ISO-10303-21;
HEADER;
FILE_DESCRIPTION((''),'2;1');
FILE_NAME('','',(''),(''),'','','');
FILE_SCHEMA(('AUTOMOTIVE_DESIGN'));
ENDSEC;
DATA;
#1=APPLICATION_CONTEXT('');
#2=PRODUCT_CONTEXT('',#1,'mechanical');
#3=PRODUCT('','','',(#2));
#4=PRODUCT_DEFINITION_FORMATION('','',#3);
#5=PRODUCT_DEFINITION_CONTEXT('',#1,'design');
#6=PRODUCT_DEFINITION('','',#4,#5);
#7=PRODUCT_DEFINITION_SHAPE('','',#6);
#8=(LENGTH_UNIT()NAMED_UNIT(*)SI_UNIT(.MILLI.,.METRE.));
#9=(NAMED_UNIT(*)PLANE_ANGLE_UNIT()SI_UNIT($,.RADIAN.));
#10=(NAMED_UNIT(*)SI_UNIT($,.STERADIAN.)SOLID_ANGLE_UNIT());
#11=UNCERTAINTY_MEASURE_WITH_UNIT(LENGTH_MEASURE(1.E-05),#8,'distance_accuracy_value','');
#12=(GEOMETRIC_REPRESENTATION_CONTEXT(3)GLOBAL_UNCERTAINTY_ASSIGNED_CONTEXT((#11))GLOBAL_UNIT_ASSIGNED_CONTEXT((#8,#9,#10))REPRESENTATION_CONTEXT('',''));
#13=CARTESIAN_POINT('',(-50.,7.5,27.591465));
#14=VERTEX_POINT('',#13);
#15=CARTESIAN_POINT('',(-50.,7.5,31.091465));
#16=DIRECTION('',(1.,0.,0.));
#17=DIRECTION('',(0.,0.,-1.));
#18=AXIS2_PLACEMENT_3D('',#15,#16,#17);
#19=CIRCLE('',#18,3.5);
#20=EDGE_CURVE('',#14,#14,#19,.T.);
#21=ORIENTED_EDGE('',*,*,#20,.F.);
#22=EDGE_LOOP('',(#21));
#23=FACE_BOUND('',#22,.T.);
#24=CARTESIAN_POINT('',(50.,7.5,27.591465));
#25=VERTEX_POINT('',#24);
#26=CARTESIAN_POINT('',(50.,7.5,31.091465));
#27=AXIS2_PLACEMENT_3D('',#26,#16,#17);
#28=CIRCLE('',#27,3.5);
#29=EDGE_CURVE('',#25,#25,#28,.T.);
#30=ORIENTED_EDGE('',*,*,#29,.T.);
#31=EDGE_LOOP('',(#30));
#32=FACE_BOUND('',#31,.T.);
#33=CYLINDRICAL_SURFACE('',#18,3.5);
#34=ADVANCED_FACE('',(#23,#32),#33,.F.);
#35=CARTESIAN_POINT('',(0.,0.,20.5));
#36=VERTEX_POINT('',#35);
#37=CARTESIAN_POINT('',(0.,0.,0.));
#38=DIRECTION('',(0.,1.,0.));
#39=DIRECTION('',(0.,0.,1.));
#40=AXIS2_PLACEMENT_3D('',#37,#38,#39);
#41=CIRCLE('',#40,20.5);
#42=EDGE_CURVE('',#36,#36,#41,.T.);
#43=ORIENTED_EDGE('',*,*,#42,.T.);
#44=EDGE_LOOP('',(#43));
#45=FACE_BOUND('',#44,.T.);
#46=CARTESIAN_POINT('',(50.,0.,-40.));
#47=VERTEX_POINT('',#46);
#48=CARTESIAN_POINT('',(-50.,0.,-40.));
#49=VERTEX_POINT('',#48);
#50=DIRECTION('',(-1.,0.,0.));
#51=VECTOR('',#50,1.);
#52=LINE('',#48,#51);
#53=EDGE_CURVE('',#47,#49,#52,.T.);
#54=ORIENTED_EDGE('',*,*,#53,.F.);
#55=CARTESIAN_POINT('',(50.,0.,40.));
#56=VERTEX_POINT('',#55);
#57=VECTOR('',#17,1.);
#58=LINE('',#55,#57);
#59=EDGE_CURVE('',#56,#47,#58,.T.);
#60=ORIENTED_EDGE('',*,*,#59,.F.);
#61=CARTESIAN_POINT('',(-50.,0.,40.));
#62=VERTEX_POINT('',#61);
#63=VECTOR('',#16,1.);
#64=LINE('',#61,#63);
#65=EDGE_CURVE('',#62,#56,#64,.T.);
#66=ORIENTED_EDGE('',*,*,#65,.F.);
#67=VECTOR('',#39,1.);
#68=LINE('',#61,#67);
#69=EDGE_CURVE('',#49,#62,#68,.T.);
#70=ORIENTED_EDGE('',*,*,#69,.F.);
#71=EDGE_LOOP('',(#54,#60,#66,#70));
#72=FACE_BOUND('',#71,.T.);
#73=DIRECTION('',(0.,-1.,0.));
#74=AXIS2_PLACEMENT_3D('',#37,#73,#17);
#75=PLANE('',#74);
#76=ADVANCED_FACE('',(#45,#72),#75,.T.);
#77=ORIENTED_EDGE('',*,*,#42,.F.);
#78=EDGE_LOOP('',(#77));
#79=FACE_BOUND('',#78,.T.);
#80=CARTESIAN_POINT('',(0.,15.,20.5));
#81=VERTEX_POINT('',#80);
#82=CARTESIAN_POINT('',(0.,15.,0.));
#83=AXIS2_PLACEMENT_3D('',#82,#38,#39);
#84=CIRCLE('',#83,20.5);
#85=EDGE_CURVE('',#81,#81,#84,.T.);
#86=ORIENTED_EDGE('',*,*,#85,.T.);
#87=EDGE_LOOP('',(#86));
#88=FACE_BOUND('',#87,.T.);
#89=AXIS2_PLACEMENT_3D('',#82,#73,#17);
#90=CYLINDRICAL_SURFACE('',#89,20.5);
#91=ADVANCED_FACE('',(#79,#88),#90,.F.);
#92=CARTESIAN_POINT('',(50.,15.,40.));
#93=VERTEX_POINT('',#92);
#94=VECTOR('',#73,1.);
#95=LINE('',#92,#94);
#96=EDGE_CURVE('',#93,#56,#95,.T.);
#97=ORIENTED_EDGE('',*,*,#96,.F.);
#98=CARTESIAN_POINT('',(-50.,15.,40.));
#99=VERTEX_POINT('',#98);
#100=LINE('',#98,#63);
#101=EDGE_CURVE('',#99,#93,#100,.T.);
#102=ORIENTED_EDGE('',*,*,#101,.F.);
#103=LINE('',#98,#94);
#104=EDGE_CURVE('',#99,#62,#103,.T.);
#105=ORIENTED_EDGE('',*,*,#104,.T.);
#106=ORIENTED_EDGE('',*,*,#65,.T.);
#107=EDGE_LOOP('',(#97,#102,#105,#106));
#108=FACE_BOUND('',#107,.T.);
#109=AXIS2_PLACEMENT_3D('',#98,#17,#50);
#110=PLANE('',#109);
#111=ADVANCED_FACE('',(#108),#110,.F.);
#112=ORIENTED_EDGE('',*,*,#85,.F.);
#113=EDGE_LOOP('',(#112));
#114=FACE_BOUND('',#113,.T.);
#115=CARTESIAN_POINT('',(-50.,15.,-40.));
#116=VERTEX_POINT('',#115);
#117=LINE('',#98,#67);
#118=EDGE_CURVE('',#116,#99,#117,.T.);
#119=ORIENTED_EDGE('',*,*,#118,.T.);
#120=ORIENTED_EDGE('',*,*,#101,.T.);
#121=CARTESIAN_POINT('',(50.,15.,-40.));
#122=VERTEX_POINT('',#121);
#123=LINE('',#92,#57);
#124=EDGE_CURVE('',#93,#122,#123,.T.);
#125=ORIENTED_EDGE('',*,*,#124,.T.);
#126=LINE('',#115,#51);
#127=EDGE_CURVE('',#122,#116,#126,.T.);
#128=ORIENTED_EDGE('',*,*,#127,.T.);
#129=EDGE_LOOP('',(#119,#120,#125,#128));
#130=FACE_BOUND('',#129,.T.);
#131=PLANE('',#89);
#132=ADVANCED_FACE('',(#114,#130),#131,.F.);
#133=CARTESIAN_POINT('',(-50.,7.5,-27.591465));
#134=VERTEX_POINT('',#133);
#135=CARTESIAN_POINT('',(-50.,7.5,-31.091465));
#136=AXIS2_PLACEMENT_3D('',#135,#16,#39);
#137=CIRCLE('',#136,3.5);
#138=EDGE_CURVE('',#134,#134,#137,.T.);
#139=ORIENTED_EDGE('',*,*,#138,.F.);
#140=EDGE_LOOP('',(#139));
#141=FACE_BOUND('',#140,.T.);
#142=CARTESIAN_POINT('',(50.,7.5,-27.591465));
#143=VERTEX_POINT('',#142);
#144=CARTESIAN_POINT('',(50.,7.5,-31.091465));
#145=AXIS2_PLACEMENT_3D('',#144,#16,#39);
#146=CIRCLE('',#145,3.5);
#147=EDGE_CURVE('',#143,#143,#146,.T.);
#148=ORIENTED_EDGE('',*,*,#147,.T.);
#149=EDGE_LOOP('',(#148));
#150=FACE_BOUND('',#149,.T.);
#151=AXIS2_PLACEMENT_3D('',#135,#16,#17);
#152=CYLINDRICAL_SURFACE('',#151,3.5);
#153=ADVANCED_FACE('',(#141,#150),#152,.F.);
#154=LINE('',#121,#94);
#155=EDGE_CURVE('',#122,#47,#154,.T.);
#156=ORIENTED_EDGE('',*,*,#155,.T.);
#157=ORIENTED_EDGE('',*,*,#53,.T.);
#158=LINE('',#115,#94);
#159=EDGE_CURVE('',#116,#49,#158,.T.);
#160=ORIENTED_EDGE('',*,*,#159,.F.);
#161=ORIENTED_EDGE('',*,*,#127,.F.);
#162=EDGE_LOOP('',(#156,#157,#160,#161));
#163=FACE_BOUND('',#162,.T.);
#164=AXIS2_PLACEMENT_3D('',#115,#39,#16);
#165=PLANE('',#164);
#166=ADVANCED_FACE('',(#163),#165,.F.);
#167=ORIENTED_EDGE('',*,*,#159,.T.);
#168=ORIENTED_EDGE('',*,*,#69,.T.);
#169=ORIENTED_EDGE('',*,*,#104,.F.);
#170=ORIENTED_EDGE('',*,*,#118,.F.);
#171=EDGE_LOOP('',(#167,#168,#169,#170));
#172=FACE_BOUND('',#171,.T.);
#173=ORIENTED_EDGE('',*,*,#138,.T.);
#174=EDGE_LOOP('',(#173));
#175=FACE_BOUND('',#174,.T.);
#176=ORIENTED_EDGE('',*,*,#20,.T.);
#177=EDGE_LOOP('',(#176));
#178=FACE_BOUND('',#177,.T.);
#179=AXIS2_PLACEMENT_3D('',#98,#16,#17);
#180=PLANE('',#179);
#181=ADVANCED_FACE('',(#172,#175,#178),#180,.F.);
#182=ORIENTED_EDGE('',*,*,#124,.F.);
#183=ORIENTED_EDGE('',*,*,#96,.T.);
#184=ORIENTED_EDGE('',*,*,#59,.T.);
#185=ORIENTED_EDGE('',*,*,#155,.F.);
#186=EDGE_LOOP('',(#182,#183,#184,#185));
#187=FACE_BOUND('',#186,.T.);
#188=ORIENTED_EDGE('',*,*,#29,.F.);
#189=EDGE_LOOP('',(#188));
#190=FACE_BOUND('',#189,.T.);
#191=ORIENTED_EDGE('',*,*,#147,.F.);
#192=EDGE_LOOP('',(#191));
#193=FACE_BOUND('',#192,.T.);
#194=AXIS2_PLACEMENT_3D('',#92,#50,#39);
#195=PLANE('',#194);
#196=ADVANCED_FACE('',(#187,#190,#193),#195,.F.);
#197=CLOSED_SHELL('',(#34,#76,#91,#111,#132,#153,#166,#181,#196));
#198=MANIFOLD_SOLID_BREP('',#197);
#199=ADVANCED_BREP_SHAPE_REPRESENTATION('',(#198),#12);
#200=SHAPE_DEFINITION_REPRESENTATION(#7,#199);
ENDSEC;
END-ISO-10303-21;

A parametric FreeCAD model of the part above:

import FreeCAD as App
import Part
import Sketcher
from FreeCAD import Vector
Q = App.Units.Quantity

doc = App.newDocument("Part")
body = doc.addObject("PartDesign::Body", "Body")

# Sketch on XZ plane
sketch1 = doc.addObject("Sketcher::SketchObject", "Sketch")
body.addObject(sketch1)
sketch1.AttachmentSupport = (doc.XZ_Plane, [""])
sketch1.MapMode = "FlatFace"
sketch1.addGeometry([
    Part.LineSegment(Vector(-50, -40, 0), Vector(-50, 40, 0)),  # 0
    Part.LineSegment(Vector(-50, 40, 0), Vector(50, 40, 0)),  # 1
    Part.LineSegment(Vector(50, 40, 0), Vector(50, -40, 0)),  # 2
    Part.LineSegment(Vector(50, -40, 0), Vector(-50, -40, 0)),  # 3
    Part.Circle(Vector(0, 0, 0), Vector(0, 0, 1), 20.5),  # 4
], False)
sketch1.addConstraint([
    Sketcher.Constraint("Coincident", 0, 2, 1, 1),
    Sketcher.Constraint("Coincident", 1, 2, 2, 1),
    Sketcher.Constraint("Coincident", 2, 2, 3, 1),
    Sketcher.Constraint("Coincident", 3, 2, 0, 1),
    Sketcher.Constraint("Vertical", 0),
    Sketcher.Constraint("Horizontal", 1),
    Sketcher.Constraint("Vertical", 2),
    Sketcher.Constraint("Horizontal", 3),
    Sketcher.Constraint("Coincident", 4, 3, -1, 1),
    Sketcher.Constraint("Symmetric", 0, 2, 2, 2, -1, 1),
    Sketcher.Constraint("Diameter", 4, Q("41 mm")),
    Sketcher.Constraint("DistanceX", 1, 1, 1, 2, Q("100 mm")),
    Sketcher.Constraint("DistanceY", 0, 1, 0, 2, Q("80 mm")),
])
pad1 = doc.addObject("PartDesign::Pad", "Pad")
body.addObject(pad1)
pad1.Profile = sketch1
pad1.Length = 15
pad1.Reversed = True

# Sketch on YZ plane
sketch2 = doc.addObject("Sketcher::SketchObject", "Sketch001")
body.addObject(sketch2)
sketch2.AttachmentSupport = (doc.YZ_Plane, [""])
sketch2.MapMode = "FlatFace"
sketch2.AttachmentOffset = App.Placement(Vector(0, 0, 50), App.Rotation())
sketch2.addGeometry([
    Part.Circle(Vector(7.5, 31.091465, 0), Vector(0, 0, 1), 3.5),
    Part.Circle(Vector(7.5, -31.091465, 0), Vector(0, 0, 1), 3.5),
], False)
sketch2.addConstraint([
    Sketcher.Constraint("Equal", 0, 1),
    Sketcher.Constraint("Symmetric", 0, 3, 1, 3, -1),
    Sketcher.Constraint("Diameter", 0, Q("7 mm")),
    Sketcher.Constraint("DistanceX", -1, 1, 0, 3, Q("7.5 mm")),
    Sketcher.Constraint("DistanceY", 1, 3, 0, 3, Q("62.182929 mm")),
])
pocket1 = doc.addObject("PartDesign::Pocket", "Pocket")
body.addObject(pocket1)
pocket1.Profile = sketch2
pocket1.Length = 100

doc.recompute()
